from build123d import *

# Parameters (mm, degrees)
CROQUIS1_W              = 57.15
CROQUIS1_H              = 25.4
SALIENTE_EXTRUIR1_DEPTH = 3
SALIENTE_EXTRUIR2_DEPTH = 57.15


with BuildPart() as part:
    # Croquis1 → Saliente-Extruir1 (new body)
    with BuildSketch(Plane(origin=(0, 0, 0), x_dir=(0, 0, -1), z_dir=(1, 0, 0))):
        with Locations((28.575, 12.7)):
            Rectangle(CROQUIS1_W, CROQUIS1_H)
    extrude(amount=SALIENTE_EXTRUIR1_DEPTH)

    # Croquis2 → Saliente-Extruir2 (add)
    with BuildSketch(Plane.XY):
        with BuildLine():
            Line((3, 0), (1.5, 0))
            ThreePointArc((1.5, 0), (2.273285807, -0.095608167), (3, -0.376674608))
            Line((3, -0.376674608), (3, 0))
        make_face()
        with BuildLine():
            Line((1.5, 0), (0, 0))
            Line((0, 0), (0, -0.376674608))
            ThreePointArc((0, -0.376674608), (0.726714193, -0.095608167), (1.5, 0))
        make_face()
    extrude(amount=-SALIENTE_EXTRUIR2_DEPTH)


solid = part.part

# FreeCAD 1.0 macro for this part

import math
import FreeCAD as App
import Part
import Sketcher

V = App.Vector
Q = App.Units.Quantity


def add_polygon(sketch, points):
    """Adds a closed chain of lines whose ends are joined by coincident constraints."""
    first, n = sketch.GeometryCount, len(points)
    for a, b in zip(points, points[1:] + points[:1]):
        sketch.addGeometry(Part.LineSegment(App.Vector(*a, 0), App.Vector(*b, 0)), False)
    for i in range(n):
        sketch.addConstraint(Sketcher.Constraint("Coincident", first + i, 2, first + (i + 1) % n, 1))

doc = App.newDocument("Part")
body = doc.addObject("PartDesign::Body", "Body")

# Sketch on YZ plane
sketch1 = body.newObject("Sketcher::SketchObject", "Sketch")
sketch1.AttachmentSupport = (doc.getObject("YZ_Plane"), [""])
sketch1.MapMode = "FlatFace"
add_polygon(sketch1, [(25, 0), (0, 0), (0, -57), (25, -57)])  # lines 0-3
sketch1.addConstraint(Sketcher.Constraint("Horizontal", 0))
sketch1.addConstraint(Sketcher.Constraint("Vertical", 1))
sketch1.addConstraint(Sketcher.Constraint("Horizontal", 2))
sketch1.addConstraint(Sketcher.Constraint("Vertical", 3))
sketch1.addConstraint(Sketcher.Constraint("Coincident", 0, 2, -1, 1))
sketch1.addConstraint(Sketcher.Constraint("DistanceX", 0, 2, 0, 1, Q("1 in")))
sketch1.addConstraint(Sketcher.Constraint("DistanceY", 1, 2, 1, 1, Q("2.25 in")))
pad1 = body.newObject("PartDesign::Pad", "Pad")
pad1.Profile = sketch1
pad1.Length = 3

# Sketch on XY plane
sketch2 = body.newObject("Sketcher::SketchObject", "Sketch001")
sketch2.AttachmentSupport = (doc.getObject("XY_Plane"), [""])
sketch2.MapMode = "FlatFace"
sketch2.addGeometry(Part.LineSegment(V(3, 0, 0), V(1.5, 0, 0)), False)
sketch2.addGeometry(Part.ArcOfCircle(Part.Circle(V(1.5, -3.17, 0), V(0, 0, 1), 3.17), math.radians(62), math.radians(90)), False)
sketch2.addGeometry(Part.LineSegment(V(3, -0.38, 0), V(3, 0, 0)), False)
sketch2.addGeometry(Part.LineSegment(V(1.5, 0, 0), V(0, 0, 0)), False)
sketch2.addGeometry(Part.LineSegment(V(0, 0, 0), V(0, -0.38, 0)), False)
sketch2.addGeometry(Part.ArcOfCircle(Part.Circle(V(1.5, -3.17, 0), V(0, 0, 1), 3.17), math.radians(90), math.radians(118)), False)
sketch2.addConstraint(Sketcher.Constraint("Tangent", 0, 2, 1, 2))
sketch2.addConstraint(Sketcher.Constraint("Coincident", 1, 1, 2, 1))
sketch2.addConstraint(Sketcher.Constraint("Coincident", 2, 2, 0, 1))
sketch2.addConstraint(Sketcher.Constraint("Coincident", 3, 2, 4, 1))
sketch2.addConstraint(Sketcher.Constraint("Coincident", 4, 2, 5, 2))
sketch2.addConstraint(Sketcher.Constraint("Tangent", 5, 1, 3, 1))
sketch2.addConstraint(Sketcher.Constraint("Horizontal", 0))
sketch2.addConstraint(Sketcher.Constraint("Vertical", 2))
sketch2.addConstraint(Sketcher.Constraint("Horizontal", 3))
sketch2.addConstraint(Sketcher.Constraint("Vertical", 4))
sketch2.addConstraint(Sketcher.Constraint("Coincident", 3, 2, -1, 1))
sketch2.addConstraint(Sketcher.Constraint("Coincident", 5, 3, 1, 3))
sketch2.addConstraint(Sketcher.Constraint("Equal", 1, 5))
sketch2.addConstraint(Sketcher.Constraint("Horizontal", 1, 1, 4, 2))
sketch2.addConstraint(Sketcher.Constraint("Radius", 1, Q("0.125 in")))
sketch2.addConstraint(Sketcher.Constraint("DistanceX", 0, 2, 0, 1, Q("1.5 mm")))
pad2 = body.newObject("PartDesign::Pad", "Pad001")
pad2.Profile = sketch2
pad2.Length = Q("2.25 in")
pad2.Reversed = True

doc.recompute()
